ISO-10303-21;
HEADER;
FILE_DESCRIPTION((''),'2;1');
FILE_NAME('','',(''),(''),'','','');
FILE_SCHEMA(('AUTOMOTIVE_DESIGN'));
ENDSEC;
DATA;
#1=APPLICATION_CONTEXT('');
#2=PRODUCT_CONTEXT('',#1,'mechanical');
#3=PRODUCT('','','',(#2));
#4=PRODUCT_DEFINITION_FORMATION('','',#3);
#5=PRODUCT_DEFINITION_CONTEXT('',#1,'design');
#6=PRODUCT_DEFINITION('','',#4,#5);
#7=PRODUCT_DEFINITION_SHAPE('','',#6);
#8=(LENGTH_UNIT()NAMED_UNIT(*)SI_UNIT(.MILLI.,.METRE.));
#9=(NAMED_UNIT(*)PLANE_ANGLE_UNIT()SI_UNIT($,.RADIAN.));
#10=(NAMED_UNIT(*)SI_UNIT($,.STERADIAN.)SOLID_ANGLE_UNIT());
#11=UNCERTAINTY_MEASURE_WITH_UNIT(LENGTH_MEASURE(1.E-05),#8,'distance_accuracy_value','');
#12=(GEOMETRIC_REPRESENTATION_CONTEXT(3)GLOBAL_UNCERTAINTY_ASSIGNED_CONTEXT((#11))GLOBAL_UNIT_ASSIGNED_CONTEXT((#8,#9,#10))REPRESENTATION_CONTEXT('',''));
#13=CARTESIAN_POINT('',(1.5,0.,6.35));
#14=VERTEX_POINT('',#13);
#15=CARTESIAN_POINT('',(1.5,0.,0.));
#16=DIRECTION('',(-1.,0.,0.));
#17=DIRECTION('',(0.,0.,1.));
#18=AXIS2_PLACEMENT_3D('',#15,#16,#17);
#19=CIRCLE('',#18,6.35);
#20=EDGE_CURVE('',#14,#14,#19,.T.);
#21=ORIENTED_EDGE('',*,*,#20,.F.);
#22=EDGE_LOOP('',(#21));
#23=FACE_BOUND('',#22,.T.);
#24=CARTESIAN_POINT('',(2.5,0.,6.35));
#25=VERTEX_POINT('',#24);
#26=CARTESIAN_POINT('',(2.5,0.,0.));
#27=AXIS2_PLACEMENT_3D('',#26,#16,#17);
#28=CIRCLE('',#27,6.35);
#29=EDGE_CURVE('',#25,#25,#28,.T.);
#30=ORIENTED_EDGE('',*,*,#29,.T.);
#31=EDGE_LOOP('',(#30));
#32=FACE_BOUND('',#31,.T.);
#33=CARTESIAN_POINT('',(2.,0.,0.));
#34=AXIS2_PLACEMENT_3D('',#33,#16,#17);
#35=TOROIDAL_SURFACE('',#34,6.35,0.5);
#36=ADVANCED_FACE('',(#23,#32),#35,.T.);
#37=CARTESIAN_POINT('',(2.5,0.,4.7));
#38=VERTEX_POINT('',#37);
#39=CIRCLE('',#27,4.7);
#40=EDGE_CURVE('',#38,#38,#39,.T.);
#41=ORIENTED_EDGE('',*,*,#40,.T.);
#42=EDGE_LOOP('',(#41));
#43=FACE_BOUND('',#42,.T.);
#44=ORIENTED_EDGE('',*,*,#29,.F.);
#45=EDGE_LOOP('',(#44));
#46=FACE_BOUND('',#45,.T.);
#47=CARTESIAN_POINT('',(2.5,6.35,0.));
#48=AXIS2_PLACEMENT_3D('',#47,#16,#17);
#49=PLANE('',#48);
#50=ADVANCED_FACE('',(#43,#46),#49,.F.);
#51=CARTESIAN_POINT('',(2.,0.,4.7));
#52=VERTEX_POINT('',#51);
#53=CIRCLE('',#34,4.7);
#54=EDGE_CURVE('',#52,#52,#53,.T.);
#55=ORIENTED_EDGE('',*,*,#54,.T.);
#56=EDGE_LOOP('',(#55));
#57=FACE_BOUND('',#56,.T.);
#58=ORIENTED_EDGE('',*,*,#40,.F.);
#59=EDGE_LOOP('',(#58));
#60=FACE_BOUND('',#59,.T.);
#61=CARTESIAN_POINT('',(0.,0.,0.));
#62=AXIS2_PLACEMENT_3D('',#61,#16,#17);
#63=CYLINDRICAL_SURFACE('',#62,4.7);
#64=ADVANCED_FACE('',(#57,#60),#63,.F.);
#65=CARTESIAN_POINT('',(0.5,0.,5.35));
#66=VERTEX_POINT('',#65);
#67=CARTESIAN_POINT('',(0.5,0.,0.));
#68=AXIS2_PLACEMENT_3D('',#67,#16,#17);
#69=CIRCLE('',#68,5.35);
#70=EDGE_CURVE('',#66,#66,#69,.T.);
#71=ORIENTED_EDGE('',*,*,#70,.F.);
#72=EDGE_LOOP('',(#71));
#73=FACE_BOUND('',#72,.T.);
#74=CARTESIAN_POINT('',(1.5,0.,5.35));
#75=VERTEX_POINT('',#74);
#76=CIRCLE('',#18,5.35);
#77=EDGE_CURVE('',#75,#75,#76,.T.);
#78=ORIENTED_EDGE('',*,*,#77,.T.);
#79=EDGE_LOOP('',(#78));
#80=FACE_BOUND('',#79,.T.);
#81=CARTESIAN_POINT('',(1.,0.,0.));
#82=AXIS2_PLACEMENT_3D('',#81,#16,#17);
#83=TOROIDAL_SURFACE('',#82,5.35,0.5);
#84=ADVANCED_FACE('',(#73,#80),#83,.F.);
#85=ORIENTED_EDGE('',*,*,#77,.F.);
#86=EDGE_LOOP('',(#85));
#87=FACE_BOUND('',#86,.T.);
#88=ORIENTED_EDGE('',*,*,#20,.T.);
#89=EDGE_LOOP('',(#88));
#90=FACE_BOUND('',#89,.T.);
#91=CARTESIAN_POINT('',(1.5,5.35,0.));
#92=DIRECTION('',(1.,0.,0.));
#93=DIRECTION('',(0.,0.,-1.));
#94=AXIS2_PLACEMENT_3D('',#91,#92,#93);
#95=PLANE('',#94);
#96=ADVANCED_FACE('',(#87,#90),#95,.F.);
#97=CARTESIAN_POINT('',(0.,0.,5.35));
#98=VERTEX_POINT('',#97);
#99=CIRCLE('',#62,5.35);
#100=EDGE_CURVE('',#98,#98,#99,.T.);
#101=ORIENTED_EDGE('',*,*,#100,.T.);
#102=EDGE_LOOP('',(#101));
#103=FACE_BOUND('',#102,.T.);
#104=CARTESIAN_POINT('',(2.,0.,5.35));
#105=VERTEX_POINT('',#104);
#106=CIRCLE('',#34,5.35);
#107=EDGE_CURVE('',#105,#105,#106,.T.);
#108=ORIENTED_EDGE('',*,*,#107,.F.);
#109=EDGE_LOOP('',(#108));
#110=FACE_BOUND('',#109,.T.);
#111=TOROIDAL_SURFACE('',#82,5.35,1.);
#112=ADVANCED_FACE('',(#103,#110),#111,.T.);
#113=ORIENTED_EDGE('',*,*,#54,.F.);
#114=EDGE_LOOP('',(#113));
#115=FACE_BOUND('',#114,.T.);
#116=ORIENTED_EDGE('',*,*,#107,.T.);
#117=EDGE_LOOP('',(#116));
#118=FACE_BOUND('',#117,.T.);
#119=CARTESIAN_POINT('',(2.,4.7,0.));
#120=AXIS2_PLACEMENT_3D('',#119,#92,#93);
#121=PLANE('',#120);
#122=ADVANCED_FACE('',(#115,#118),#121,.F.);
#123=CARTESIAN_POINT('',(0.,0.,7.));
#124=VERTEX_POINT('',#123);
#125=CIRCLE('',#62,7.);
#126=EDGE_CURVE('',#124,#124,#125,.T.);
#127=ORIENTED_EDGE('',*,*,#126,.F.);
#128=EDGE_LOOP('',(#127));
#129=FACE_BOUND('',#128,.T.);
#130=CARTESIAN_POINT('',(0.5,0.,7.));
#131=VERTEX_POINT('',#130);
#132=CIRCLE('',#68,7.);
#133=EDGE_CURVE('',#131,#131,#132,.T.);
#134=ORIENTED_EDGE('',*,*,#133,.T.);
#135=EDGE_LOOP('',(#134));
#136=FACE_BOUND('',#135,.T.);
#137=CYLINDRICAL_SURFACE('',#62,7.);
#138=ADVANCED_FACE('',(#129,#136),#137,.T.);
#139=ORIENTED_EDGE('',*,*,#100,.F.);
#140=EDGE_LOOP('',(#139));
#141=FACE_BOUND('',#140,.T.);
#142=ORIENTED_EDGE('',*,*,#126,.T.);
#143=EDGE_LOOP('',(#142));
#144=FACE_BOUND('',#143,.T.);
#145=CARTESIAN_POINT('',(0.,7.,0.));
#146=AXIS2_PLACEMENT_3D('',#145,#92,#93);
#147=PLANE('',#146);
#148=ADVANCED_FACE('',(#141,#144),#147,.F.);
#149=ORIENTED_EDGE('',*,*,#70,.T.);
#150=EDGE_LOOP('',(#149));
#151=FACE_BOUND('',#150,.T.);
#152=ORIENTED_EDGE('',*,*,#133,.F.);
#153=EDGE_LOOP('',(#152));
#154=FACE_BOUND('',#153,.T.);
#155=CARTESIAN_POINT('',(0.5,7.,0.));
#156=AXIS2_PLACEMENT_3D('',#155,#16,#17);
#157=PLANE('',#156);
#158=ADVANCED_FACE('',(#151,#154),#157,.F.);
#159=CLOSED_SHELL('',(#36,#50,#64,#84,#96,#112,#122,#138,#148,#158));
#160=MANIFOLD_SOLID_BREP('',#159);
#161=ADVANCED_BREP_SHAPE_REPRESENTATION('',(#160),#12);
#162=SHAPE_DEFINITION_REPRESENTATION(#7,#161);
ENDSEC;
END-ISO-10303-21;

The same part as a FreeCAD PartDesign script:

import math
import FreeCAD as App
import Part
import Sketcher

V = App.Vector

doc = App.newDocument("Part")
body = doc.addObject("PartDesign::Body", "Body")

# Sketch on XY plane
sketch1 = body.newObject("Sketcher::SketchObject", "Sketch")
sketch1.AttachmentSupport = (doc.getObject("XY_Plane"), [""])
sketch1.MapMode = "FlatFace"
sketch1.addGeometry([
    Part.LineSegment(V(0, 7, 0), V(0, 5.3, 0)),  # 0
    Part.ArcOfCircle(Part.Circle(V(1, 5.3, 0), V(0, 0, 1), 1), math.radians(180), math.radians(360)),  # 1
    Part.LineSegment(V(2, 5.3, 0), V(2, 4.7, 0)),  # 2
    Part.LineSegment(V(2, 4.7, 0), V(2.5, 4.7, 0)),  # 3
    Part.LineSegment(V(2.5, 4.7, 0), V(2.5, 6.3, 0)),  # 4
    Part.ArcOfCircle(Part.Circle(V(2, 6.3, 0), V(0, 0, 1), 0.5), math.radians(0), math.radians(180)),  # 5
    Part.LineSegment(V(1.5, 6.3, 0), V(1.5, 5.3, 0)),  # 6
    Part.ArcOfCircle(Part.Circle(V(1, 5.3, 0), V(0, 0, 1), 0.5), math.radians(180), math.radians(360)),  # 7
    Part.LineSegment(V(0.5, 5.3, 0), V(0.5, 7, 0)),  # 8
    Part.LineSegment(V(0.5, 7, 0), V(0, 7, 0)),  # 9
], False)
sketch1.addConstraint([
    Sketcher.Constraint("Tangent", 0, 2, 1, 1),
    Sketcher.Constraint("Tangent", 1, 2, 2, 1),
    Sketcher.Constraint("Coincident", 2, 2, 3, 1),
    Sketcher.Constraint("Coincident", 3, 2, 4, 1),
    Sketcher.Constraint("Tangent", 4, 2, 5, 1),
    Sketcher.Constraint("Tangent", 5, 2, 6, 1),
    Sketcher.Constraint("Tangent", 6, 2, 7, 2),
    Sketcher.Constraint("Tangent", 7, 1, 8, 1),
    Sketcher.Constraint("Coincident", 8, 2, 9, 1),
    Sketcher.Constraint("Coincident", 9, 2, 0, 1),
    Sketcher.Constraint("Vertical", 0),
    Sketcher.Constraint("Vertical", 2),
    Sketcher.Constraint("Horizontal", 3),
    Sketcher.Constraint("Vertical", 4),
    Sketcher.Constraint("Vertical", 6),
    Sketcher.Constraint("Vertical", 8),
    Sketcher.Constraint("Horizontal", 9),
    Sketcher.Constraint("Coincident", 7, 3, 1, 3),
    Sketcher.Constraint("Equal", 5, 7),
    Sketcher.Constraint("PointOnObject", 0, 2, -2),
    Sketcher.Constraint("Vertical", 5, 3, 1, 2),
    Sketcher.Constraint("Equal", 0, 4),
    Sketcher.Constraint("Radius", 1, 1.0),
    Sketcher.Constraint("DistanceY", 6, 2, 6, 1, 1.0),
    Sketcher.Constraint("DistanceY", -1, 1, 8, 2, 7.0),
    Sketcher.Constraint("DistanceY", 0, 2, 0, 1, 1.65),
])
revolution = body.newObject("PartDesign::Revolution", "Revolution")
revolution.Profile = sketch1
revolution.ReferenceAxis = (sketch1, ["H_Axis"])
revolution.Angle = 360

doc.recompute()
